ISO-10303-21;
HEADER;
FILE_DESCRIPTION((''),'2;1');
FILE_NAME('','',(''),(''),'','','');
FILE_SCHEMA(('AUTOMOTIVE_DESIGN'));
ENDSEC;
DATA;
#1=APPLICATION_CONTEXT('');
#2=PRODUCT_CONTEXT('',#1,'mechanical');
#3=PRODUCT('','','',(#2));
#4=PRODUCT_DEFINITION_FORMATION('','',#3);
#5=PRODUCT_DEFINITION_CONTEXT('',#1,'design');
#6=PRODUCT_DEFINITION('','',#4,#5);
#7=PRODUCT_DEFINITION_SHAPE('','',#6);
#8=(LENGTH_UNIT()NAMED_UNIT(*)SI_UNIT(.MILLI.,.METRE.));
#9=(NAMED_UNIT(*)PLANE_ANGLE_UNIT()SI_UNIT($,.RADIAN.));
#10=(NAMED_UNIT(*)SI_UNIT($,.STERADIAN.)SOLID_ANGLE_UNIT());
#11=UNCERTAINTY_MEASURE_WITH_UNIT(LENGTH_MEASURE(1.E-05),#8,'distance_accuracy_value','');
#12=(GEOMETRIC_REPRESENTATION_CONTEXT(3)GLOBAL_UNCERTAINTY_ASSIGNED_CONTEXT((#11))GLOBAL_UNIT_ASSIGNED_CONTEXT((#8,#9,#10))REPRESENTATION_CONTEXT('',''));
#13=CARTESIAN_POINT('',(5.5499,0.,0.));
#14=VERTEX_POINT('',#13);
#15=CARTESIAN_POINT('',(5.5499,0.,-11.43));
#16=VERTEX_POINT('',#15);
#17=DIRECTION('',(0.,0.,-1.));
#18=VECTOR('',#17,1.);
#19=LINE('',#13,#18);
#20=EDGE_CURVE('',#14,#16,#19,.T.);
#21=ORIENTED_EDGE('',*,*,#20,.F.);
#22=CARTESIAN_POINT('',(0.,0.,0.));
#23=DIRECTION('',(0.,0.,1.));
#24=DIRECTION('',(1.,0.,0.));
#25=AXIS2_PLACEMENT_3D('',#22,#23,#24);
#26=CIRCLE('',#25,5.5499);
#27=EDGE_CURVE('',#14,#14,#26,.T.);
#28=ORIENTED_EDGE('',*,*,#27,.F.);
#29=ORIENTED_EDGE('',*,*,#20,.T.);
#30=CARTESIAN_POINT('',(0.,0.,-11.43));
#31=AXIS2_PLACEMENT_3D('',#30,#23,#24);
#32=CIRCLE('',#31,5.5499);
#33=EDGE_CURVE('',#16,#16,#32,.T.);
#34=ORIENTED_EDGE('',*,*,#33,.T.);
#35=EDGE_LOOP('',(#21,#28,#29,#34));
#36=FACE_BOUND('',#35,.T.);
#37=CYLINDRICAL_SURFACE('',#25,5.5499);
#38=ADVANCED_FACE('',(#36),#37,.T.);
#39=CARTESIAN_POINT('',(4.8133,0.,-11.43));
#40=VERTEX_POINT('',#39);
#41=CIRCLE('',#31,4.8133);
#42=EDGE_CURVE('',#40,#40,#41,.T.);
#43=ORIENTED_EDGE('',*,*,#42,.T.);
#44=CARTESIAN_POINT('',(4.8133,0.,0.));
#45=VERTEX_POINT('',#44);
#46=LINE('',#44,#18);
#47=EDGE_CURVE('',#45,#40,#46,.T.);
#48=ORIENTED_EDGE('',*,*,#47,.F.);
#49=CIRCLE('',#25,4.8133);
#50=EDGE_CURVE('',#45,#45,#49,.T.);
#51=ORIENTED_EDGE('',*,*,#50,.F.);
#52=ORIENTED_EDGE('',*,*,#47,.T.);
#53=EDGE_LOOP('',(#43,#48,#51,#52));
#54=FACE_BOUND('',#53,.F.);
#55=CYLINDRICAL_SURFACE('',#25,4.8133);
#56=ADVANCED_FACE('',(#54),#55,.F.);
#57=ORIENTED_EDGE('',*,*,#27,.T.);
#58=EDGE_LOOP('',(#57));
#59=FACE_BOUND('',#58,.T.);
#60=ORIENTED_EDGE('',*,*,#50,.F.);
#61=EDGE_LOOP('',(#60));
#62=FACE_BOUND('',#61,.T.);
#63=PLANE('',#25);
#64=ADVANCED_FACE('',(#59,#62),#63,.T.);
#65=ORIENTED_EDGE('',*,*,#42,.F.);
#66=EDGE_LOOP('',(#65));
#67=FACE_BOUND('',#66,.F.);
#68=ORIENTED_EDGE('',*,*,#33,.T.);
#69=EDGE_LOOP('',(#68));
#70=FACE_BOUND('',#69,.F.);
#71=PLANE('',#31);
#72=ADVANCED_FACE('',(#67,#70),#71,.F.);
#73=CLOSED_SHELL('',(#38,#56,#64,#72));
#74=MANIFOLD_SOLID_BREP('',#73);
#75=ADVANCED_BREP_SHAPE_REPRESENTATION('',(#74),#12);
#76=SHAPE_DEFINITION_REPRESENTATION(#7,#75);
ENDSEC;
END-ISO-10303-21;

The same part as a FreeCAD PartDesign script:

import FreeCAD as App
import Part
import Sketcher
Q = App.Units.Quantity

doc = App.newDocument("Part")
body = doc.addObject("PartDesign::Body", "Body")

sketch1 = body.newObject("Sketcher::SketchObject", "Sketch")
sketch1.AttachmentSupport = (doc.getObject("XY_Plane"), [""])
sketch1.MapMode = "FlatFace"
sketch1.addGeometry([
    Part.Circle(App.Vector(0, 0, 0), App.Vector(0, 0, 1), 5.5),
    Part.Circle(App.Vector(0, 0, 0), App.Vector(0, 0, 1), 4.8),
], False)
sketch1.addConstraint([
    Sketcher.Constraint("Coincident", 0, 3, -1, 1),
    Sketcher.Constraint("Coincident", 1, 3, -1, 1),
    Sketcher.Constraint("Diameter", 0, Q("0.437 in")),
    Sketcher.Constraint("Diameter", 1, Q("0.379 in")),
])
pad1 = body.newObject("PartDesign::Pad", "Pad")
pad1.Profile = sketch1
pad1.Length = Q("0.45 in")
pad1.Reversed = True

doc.recompute()
